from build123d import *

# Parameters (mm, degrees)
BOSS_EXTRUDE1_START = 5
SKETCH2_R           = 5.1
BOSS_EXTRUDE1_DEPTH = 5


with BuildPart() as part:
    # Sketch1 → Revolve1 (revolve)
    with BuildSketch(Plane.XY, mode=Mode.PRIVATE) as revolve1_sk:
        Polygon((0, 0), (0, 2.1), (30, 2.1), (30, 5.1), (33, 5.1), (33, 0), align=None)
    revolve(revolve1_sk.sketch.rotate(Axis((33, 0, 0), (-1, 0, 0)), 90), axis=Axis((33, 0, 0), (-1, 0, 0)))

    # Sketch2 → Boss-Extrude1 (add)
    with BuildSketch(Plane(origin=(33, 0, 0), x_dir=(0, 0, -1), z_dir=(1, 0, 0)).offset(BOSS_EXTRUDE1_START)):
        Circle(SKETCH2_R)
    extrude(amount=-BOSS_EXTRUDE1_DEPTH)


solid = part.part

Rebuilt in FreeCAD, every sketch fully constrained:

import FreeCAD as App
import Part
import Sketcher

V = App.Vector
Q = App.Units.Quantity

doc = App.newDocument("Part")
body = doc.addObject("PartDesign::Body", "Body")

# Sketch on XY plane
sketch1 = body.newObject("Sketcher::SketchObject", "Sketch")
sketch1.AttachmentSupport = (doc.getObject("XY_Plane"), [""])
sketch1.MapMode = "FlatFace"
sketch1.addGeometry(Part.LineSegment(V(0, 2.1, 0), V(0, 0, 0)), False)
sketch1.addGeometry(Part.LineSegment(V(0, 0, 0), V(33, 0, 0)), False)
sketch1.addGeometry(Part.LineSegment(V(33, 0, 0), V(33, 5.1, 0)), False)
sketch1.addGeometry(Part.LineSegment(V(33, 5.1, 0), V(30, 5.1, 0)), False)
sketch1.addGeometry(Part.LineSegment(V(30, 5.1, 0), V(30, 2.1, 0)), False)
sketch1.addGeometry(Part.LineSegment(V(30, 2.1, 0), V(0, 2.1, 0)), False)
sketch1.addConstraint(Sketcher.Constraint("Coincident", 0, 2, 1, 1))
sketch1.addConstraint(Sketcher.Constraint("Coincident", 1, 2, 2, 1))
sketch1.addConstraint(Sketcher.Constraint("Coincident", 2, 2, 3, 1))
sketch1.addConstraint(Sketcher.Constraint("Coincident", 3, 2, 4, 1))
sketch1.addConstraint(Sketcher.Constraint("Coincident", 4, 2, 5, 1))
sketch1.addConstraint(Sketcher.Constraint("Coincident", 5, 2, 0, 1))
sketch1.addConstraint(Sketcher.Constraint("Vertical", 0))
sketch1.addConstraint(Sketcher.Constraint("Horizontal", 1))
sketch1.addConstraint(Sketcher.Constraint("Vertical", 2))
sketch1.addConstraint(Sketcher.Constraint("Horizontal", 3))
sketch1.addConstraint(Sketcher.Constraint("Vertical", 4))
sketch1.addConstraint(Sketcher.Constraint("Horizontal", 5))
sketch1.addConstraint(Sketcher.Constraint("Coincident", 0, 2, -1, 1))
sketch1.addConstraint(Sketcher.Constraint("Equal", 3, 4))
sketch1.addConstraint(Sketcher.Constraint("DistanceX", 1, 1, 1, 2, Q("33 mm")))
sketch1.addConstraint(Sketcher.Constraint("DistanceX", 3, 2, 3, 1, Q("3 mm")))
sketch1.addConstraint(Sketcher.Constraint("DistanceY", 0, 2, 0, 1, Q("2.1 mm")))
revolution = body.newObject("PartDesign::Revolution", "Revolution")
revolution.Profile = sketch1
revolution.ReferenceAxis = (sketch1, ["H_Axis"])
revolution.Angle = 360

# Sketch on YZ plane
sketch2 = body.newObject("Sketcher::SketchObject", "Sketch001")
sketch2.AttachmentSupport = (doc.getObject("YZ_Plane"), [""])
sketch2.MapMode = "FlatFace"
sketch2.AttachmentOffset = App.Placement(V(0, 0, 38), App.Rotation())
sketch2.addGeometry(Part.Circle(V(0, 0, 0), V(0, 0, 1), 5), False)
sketch2.addConstraint(Sketcher.Constraint("Coincident", 0, 3, -1, 1))
sketch2.addConstraint(Sketcher.Constraint("Diameter", 0, Q("10.2 mm")))
pad1 = body.newObject("PartDesign::Pad", "Pad")
pad1.Profile = sketch2
pad1.Length = 5
pad1.Reversed = True

doc.recompute()
